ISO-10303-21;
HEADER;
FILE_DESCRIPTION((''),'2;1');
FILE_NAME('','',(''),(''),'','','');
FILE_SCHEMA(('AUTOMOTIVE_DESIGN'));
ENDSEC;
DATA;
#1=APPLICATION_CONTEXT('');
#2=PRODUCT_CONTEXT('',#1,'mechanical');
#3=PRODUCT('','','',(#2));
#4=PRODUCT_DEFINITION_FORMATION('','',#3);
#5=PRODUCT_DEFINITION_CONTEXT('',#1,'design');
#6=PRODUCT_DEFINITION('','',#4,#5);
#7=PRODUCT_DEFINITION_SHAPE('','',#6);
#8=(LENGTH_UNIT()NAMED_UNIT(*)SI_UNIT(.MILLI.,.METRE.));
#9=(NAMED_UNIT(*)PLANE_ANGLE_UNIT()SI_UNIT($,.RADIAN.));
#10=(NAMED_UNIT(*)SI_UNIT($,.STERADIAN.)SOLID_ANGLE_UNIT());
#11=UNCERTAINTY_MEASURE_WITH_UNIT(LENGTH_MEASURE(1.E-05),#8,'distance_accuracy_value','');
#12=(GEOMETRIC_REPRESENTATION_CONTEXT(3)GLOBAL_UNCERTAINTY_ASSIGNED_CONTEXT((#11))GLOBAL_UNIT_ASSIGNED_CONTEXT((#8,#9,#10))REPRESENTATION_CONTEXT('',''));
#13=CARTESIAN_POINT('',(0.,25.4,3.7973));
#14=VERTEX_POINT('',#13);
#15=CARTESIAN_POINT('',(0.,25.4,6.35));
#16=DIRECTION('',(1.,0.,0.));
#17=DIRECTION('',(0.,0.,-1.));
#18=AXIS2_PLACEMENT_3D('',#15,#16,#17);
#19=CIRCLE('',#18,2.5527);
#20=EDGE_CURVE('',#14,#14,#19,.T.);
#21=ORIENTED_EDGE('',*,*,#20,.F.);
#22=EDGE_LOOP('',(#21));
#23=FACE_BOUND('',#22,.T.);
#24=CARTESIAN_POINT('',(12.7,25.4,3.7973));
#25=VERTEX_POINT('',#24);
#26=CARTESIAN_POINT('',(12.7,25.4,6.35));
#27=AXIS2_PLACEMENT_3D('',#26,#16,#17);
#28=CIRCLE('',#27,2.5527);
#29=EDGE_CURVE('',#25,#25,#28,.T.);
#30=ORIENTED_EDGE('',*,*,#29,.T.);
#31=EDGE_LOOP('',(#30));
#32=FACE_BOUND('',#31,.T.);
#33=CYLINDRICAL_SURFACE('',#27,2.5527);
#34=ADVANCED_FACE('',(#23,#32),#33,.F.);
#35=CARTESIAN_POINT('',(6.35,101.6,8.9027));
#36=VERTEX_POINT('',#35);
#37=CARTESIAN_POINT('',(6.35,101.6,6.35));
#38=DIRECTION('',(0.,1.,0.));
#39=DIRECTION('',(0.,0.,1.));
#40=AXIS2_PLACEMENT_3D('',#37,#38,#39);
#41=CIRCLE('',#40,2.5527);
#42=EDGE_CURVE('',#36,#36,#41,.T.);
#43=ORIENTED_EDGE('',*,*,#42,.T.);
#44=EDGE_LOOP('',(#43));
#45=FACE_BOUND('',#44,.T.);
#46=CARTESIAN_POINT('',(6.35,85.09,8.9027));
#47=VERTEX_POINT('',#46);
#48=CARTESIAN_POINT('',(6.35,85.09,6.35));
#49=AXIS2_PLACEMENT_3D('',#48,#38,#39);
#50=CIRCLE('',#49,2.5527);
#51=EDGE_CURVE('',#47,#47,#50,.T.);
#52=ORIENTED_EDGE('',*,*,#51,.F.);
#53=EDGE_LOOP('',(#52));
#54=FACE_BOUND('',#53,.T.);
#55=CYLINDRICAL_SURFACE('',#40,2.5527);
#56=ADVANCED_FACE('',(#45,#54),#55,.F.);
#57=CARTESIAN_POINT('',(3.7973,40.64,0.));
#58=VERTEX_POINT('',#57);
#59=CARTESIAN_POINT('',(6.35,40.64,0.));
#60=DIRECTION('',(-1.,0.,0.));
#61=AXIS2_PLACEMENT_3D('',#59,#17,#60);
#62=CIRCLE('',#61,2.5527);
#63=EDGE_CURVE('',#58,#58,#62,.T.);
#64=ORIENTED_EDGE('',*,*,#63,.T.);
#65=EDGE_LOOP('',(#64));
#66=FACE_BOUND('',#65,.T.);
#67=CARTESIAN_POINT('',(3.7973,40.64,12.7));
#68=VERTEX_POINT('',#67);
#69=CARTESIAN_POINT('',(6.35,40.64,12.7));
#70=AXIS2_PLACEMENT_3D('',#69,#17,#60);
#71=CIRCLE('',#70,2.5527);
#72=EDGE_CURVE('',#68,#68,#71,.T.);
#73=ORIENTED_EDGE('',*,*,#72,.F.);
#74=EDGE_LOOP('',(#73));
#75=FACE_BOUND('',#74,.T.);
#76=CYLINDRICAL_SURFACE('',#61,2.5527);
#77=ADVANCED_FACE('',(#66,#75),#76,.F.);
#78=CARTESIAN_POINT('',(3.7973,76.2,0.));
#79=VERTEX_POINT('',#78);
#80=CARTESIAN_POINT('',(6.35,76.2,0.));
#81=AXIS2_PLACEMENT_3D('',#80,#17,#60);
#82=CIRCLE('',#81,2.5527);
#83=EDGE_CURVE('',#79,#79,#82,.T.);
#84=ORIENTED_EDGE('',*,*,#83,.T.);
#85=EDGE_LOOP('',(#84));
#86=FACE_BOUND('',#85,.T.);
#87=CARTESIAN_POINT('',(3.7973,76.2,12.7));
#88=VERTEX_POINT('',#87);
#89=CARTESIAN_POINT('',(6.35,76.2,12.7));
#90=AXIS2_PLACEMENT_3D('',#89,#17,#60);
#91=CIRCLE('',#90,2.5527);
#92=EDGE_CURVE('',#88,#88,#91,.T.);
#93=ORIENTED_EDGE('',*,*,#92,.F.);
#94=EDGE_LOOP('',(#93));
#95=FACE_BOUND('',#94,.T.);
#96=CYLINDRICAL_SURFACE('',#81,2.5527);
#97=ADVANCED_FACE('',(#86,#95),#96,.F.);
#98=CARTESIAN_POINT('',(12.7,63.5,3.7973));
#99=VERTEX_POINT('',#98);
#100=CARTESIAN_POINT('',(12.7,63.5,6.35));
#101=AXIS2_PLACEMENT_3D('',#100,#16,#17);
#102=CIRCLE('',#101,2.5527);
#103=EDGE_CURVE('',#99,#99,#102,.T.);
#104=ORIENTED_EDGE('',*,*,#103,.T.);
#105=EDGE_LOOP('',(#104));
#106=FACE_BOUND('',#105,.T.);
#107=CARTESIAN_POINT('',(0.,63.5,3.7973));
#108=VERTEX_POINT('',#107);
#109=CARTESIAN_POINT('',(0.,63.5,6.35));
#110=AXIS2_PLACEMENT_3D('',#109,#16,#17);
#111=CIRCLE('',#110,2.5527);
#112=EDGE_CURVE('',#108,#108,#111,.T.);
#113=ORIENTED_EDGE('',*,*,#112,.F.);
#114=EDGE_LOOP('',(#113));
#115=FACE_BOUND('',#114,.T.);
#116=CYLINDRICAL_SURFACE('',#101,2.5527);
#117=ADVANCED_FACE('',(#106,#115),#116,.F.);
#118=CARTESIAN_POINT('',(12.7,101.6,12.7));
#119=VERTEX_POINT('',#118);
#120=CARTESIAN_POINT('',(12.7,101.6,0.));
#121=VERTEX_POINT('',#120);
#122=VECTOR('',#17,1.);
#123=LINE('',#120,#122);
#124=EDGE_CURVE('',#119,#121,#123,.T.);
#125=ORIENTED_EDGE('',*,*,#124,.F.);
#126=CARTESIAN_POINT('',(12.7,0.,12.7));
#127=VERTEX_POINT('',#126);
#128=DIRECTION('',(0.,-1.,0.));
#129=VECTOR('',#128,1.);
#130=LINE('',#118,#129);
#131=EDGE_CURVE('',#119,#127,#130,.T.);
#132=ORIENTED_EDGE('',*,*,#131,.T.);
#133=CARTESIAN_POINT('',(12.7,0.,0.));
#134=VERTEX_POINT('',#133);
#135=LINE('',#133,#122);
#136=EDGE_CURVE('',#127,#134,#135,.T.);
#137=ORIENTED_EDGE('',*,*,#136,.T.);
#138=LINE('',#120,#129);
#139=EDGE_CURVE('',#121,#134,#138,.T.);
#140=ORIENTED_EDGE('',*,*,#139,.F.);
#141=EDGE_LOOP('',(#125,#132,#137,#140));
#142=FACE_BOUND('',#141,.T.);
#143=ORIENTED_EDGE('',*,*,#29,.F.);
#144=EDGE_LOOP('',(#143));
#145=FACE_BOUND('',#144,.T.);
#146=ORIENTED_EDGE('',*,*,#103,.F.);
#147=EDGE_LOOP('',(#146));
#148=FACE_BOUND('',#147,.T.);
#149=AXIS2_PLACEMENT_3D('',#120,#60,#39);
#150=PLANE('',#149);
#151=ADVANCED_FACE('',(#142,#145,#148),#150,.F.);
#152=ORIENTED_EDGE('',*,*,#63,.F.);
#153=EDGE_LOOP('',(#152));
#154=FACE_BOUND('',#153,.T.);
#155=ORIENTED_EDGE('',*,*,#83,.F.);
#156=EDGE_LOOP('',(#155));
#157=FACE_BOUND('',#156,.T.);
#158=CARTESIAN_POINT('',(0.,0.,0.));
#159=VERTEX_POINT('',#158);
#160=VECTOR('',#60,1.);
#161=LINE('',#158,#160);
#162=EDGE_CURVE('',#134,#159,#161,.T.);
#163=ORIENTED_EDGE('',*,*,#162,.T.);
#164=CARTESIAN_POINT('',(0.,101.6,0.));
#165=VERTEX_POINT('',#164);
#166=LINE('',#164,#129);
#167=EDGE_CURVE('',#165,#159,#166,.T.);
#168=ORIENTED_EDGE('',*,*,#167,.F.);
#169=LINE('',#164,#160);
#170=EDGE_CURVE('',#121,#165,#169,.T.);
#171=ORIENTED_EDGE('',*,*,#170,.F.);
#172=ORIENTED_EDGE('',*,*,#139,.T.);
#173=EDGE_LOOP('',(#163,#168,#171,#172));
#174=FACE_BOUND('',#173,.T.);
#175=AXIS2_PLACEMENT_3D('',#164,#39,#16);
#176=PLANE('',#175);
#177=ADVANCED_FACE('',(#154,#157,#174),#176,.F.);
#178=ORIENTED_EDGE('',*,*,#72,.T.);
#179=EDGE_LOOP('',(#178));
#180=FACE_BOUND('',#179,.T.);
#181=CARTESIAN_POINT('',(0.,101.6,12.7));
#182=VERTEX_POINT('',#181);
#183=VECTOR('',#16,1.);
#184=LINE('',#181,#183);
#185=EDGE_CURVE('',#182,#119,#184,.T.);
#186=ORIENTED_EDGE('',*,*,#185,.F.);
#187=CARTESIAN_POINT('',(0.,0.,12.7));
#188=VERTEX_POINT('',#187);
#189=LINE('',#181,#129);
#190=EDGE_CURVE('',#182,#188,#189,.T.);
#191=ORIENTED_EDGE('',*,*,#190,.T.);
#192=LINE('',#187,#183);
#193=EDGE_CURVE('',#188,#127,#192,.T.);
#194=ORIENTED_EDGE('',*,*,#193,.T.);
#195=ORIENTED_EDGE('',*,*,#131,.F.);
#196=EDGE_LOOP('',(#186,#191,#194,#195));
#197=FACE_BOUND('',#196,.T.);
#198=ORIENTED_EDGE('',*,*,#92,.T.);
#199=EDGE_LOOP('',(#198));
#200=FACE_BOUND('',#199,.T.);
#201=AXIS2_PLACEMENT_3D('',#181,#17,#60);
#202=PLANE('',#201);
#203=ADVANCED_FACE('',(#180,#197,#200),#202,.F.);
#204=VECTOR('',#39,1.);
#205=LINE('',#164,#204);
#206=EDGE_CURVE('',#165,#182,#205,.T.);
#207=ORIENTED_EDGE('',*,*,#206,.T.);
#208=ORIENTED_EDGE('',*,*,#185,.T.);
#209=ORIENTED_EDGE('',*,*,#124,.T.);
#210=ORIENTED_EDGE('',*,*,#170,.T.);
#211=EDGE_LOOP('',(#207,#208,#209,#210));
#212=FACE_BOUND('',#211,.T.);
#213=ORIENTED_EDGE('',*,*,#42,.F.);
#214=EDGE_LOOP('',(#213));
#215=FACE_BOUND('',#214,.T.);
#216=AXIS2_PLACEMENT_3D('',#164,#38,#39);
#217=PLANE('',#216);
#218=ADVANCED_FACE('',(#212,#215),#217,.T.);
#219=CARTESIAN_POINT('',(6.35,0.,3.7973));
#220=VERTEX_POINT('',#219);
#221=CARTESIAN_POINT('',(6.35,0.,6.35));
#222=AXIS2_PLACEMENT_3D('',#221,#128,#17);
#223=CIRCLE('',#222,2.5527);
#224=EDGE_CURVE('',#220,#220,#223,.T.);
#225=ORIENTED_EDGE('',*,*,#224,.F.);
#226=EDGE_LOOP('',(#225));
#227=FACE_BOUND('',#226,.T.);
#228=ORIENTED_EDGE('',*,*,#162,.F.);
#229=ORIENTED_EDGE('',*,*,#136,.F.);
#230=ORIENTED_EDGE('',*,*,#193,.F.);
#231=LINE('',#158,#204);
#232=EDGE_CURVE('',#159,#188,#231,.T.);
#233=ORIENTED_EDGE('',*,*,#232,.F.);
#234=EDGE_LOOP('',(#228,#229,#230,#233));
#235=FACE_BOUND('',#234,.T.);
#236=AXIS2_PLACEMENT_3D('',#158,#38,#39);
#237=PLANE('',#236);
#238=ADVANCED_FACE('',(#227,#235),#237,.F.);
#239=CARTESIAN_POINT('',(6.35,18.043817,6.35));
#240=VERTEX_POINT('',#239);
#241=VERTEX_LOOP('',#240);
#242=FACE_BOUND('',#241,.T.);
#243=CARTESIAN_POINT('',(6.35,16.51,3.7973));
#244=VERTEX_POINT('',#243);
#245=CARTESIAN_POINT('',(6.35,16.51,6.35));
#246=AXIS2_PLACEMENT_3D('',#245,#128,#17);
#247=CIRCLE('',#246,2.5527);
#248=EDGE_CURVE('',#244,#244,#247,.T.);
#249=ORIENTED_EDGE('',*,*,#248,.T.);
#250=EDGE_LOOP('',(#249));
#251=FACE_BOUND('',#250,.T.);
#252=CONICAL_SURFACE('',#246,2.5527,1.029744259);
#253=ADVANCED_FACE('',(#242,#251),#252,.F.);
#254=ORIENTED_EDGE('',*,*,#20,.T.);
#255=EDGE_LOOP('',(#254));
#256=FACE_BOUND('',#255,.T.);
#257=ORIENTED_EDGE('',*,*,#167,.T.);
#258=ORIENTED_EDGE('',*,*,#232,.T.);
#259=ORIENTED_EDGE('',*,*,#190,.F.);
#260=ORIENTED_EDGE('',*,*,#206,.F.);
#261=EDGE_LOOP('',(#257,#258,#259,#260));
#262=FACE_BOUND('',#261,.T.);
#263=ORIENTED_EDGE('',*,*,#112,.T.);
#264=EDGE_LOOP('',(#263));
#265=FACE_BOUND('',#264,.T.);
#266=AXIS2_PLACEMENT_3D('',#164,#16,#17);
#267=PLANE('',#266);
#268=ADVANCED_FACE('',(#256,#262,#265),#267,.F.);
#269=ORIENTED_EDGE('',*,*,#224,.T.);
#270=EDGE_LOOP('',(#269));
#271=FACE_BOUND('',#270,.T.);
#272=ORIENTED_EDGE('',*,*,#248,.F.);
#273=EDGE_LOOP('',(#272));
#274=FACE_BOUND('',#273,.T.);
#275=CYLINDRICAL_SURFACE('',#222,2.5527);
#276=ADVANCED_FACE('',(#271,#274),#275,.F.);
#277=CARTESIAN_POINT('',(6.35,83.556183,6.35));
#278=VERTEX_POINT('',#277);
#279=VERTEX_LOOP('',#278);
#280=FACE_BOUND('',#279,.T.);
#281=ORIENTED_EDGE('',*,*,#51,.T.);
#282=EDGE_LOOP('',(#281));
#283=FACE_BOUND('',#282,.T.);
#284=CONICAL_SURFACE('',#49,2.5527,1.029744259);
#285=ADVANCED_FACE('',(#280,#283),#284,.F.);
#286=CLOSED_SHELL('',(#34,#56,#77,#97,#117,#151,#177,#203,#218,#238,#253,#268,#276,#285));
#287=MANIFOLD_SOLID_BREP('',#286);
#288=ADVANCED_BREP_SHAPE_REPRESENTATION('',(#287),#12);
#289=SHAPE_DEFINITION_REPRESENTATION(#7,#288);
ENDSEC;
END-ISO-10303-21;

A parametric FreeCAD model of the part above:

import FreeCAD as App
import Part
import Sketcher
from FreeCAD import Vector
Q = App.Units.Quantity

doc = App.newDocument("Part")
body = doc.addObject("PartDesign::Body", "Body")

# Sketch on XZ plane
sketch1 = body.newObject("Sketcher::SketchObject", "Sketch")
sketch1.AttachmentSupport = (doc.getObject("XZ_Plane"), [""])
sketch1.MapMode = "FlatFace"
sketch1.addGeometry([
    Part.LineSegment(Vector(0, 0, 0), Vector(0, 13, 0)),
    Part.LineSegment(Vector(0, 13, 0), Vector(13, 13, 0)),
    Part.LineSegment(Vector(13, 13, 0), Vector(13, 0, 0)),
    Part.LineSegment(Vector(13, 0, 0), Vector(0, 0, 0)),
], False)
sketch1.addConstraint([
    Sketcher.Constraint("Coincident", 0, 2, 1, 1),
    Sketcher.Constraint("Coincident", 1, 2, 2, 1),
    Sketcher.Constraint("Coincident", 2, 2, 3, 1),
    Sketcher.Constraint("Coincident", 3, 2, 0, 1),
    Sketcher.Constraint("Vertical", 0),
    Sketcher.Constraint("Horizontal", 1),
    Sketcher.Constraint("Vertical", 2),
    Sketcher.Constraint("Horizontal", 3),
    Sketcher.Constraint("Coincident", 3, 2, -1, 1),
    Sketcher.Constraint("Equal", 3, 0),
    Sketcher.Constraint("DistanceX", 1, 1, 1, 2, Q("0.5 in")),
])
pad1 = body.newObject("PartDesign::Pad", "Pad")
pad1.Profile = sketch1
pad1.Length = Q("4 in")
pad1.Reversed = True

# Sketch on XZ plane
sketch2 = body.newObject("Sketcher::SketchObject", "Sketch001")
sketch2.AttachmentSupport = (doc.getObject("XZ_Plane"), [""])
sketch2.MapMode = "FlatFace"
sketch2.addGeometry(Part.Circle(Vector(6.3, 6.3, 0), Vector(0, 0, 1), 2.6), False)
sketch2.addConstraint([
    Sketcher.Constraint("Diameter", 0, Q("0.201 in")),
    Sketcher.Constraint("DistanceX", -1, 1, 0, 3, Q("0.25 in")),
    Sketcher.Constraint("DistanceY", -1, 1, 0, 3, Q("0.25 in")),
])
doc.recompute()
hole = body.newObject("PartDesign::Hole", "Hole")
hole.Profile = sketch2
hole.ThreadType = "None"
hole.Diameter = Q("0.201 in")
hole.DepthType = "Dimension"
hole.Depth = Q("0.65 in")
hole.DrillPoint = "Angled"
hole.DrillPointAngle = 118

# Sketch on XZ plane
sketch3 = body.newObject("Sketcher::SketchObject", "Sketch002")
sketch3.AttachmentSupport = (doc.getObject("XZ_Plane"), [""])
sketch3.MapMode = "FlatFace"
sketch3.AttachmentOffset = App.Placement(Vector(0, 0, -4 * 25.4), App.Rotation())
sketch3.addGeometry(Part.Circle(Vector(6.3, 6.3, 0), Vector(0, 0, 1), 2.6), False)
sketch3.addConstraint([
    Sketcher.Constraint("Diameter", 0, Q("0.201 in")),
    Sketcher.Constraint("DistanceX", -1, 1, 0, 3, Q("0.25 in")),
    Sketcher.Constraint("DistanceY", -1, 1, 0, 3, Q("0.25 in")),
])
doc.recompute()
hole2 = body.newObject("PartDesign::Hole", "Hole001")
hole2.Profile = sketch3
hole2.ThreadType = "None"
hole2.Diameter = Q("0.201 in")
hole2.DepthType = "Dimension"
hole2.Depth = Q("0.65 in")
hole2.DrillPoint = "Angled"
hole2.DrillPointAngle = 118
hole2.Reversed = True

# Sketch on XY plane
sketch4 = body.newObject("Sketcher::SketchObject", "Sketch003")
sketch4.AttachmentSupport = (doc.getObject("XY_Plane"), [""])
sketch4.MapMode = "FlatFace"
sketch4.addGeometry([
    Part.Circle(Vector(6.3, 76.2, 0), Vector(0, 0, 1), 2.6),
    Part.Circle(Vector(6.3, 40.6, 0), Vector(0, 0, 1), 2.6),
], False)
sketch4.addConstraint([
    Sketcher.Constraint("Equal", 0, 1),
    Sketcher.Constraint("Vertical", 0, 3, 1, 3),
    Sketcher.Constraint("Diameter", 0, Q("0.201 in")),
    Sketcher.Constraint("DistanceY", -1, 1, 0, 3, Q("3 in")),
    Sketcher.Constraint("DistanceY", -1, 1, 1, 3, Q("1.6 in")),
    Sketcher.Constraint("DistanceX", -1, 1, 0, 3, Q("0.25 in")),
])
doc.recompute()
hole3 = body.newObject("PartDesign::Hole", "Hole002")
hole3.Profile = sketch4
hole3.ThreadType = "None"
hole3.Diameter = Q("0.201 in")
hole3.DepthType = "Dimension"
hole3.Depth = Q("0.65 in")
hole3.DrillPoint = "Angled"
hole3.DrillPointAngle = 118
hole3.Reversed = True

# Sketch on YZ plane
sketch5 = body.newObject("Sketcher::SketchObject", "Sketch004")
sketch5.AttachmentSupport = (doc.getObject("YZ_Plane"), [""])
sketch5.MapMode = "FlatFace"
sketch5.AttachmentOffset = App.Placement(Vector(0, 0, 0.5 * 25.4), App.Rotation())
sketch5.addGeometry([
    Part.Circle(Vector(25.4, 6.3, 0), Vector(0, 0, 1), 2.6),
    Part.Circle(Vector(63.5, 6.3, 0), Vector(0, 0, 1), 2.6),
], False)
sketch5.addConstraint([
    Sketcher.Constraint("Equal", 0, 1),
    Sketcher.Constraint("Horizontal", 0, 3, 1, 3),
    Sketcher.Constraint("Diameter", 0, Q("0.201 in")),
    Sketcher.Constraint("DistanceX", -1, 1, 0, 3, Q("1 in")),
    Sketcher.Constraint("DistanceX", -1, 1, 1, 3, Q("2.5 in")),
    Sketcher.Constraint("DistanceY", -1, 1, 0, 3, Q("0.25 in")),
])
doc.recompute()
hole4 = body.newObject("PartDesign::Hole", "Hole003")
hole4.Profile = sketch5
hole4.ThreadType = "None"
hole4.Diameter = Q("0.201 in")
hole4.DepthType = "Dimension"
hole4.Depth = Q("0.65 in")
hole4.DrillPoint = "Angled"
hole4.DrillPointAngle = 118

doc.recompute()
